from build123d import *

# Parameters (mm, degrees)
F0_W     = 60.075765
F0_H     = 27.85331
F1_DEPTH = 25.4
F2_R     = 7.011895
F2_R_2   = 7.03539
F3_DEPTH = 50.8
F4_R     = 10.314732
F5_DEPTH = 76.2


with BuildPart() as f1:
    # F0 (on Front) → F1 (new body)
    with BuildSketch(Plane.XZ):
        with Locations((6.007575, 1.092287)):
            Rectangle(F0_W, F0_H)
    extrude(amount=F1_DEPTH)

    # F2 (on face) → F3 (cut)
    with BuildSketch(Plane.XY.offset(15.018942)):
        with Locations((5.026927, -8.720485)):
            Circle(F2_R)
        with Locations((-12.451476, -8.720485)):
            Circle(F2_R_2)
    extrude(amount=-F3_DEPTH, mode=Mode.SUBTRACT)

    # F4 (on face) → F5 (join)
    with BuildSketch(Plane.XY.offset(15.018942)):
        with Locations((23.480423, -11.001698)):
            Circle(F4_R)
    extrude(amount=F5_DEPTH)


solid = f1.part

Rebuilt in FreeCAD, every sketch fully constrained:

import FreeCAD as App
import Part
import Sketcher
from FreeCAD import Vector
Q = App.Units.Quantity


def add_polygon(sketch, points):
    """Adds a closed chain of lines whose ends are joined by coincident constraints."""
    first, n = sketch.GeometryCount, len(points)
    for a, b in zip(points, points[1:] + points[:1]):
        sketch.addGeometry(Part.LineSegment(App.Vector(*a, 0), App.Vector(*b, 0)), False)
    for i in range(n):
        sketch.addConstraint(Sketcher.Constraint("Coincident", first + i, 2, first + (i + 1) % n, 1))

doc = App.newDocument("Part")
body = doc.addObject("PartDesign::Body", "Body")

# Sketch on XZ plane
sketch1 = body.newObject("Sketcher::SketchObject", "Sketch")
sketch1.AttachmentSupport = (doc.getObject("XZ_Plane"), [""])
sketch1.MapMode = "FlatFace"
add_polygon(sketch1, [(-24.030307, 15.018942), (-24.030307, -12.834368), (36.045457, -12.834368), (36.045457, 15.018942)])  # lines 0-3
sketch1.addConstraint(Sketcher.Constraint("Vertical", 0))
sketch1.addConstraint(Sketcher.Constraint("Horizontal", 1))
sketch1.addConstraint(Sketcher.Constraint("Vertical", 2))
sketch1.addConstraint(Sketcher.Constraint("Horizontal", 3))
sketch1.addConstraint(Sketcher.Constraint("DistanceY", 0, 2, 0, 1, 27.85331))
sketch1.addConstraint(Sketcher.Constraint("DistanceX", 1, 1, 1, 2, 60.075765))
sketch1.addConstraint(Sketcher.Constraint("DistanceY", -1, 1, 2, 2, 15.018942))
sketch1.addConstraint(Sketcher.Constraint("DistanceX", 0, 2, -1, 1, 24.030307))
pad1 = body.newObject("PartDesign::Pad", "Pad")
pad1.Profile = sketch1
pad1.Length = Q("1 in")

# Sketch on XY plane
sketch2 = body.newObject("Sketcher::SketchObject", "Sketch001")
sketch2.AttachmentSupport = (doc.getObject("XY_Plane"), [""])
sketch2.MapMode = "FlatFace"
sketch2.AttachmentOffset = App.Placement(Vector(0, 0, 15.018942), App.Rotation())
sketch2.addGeometry(Part.Circle(Vector(5.026927, -8.720485, 0), Vector(0, 0, 1), 7.011895), False)
sketch2.addGeometry(Part.Circle(Vector(-12.451476, -8.720485, 0), Vector(0, 0, 1), 7.03539), False)
sketch2.addConstraint(Sketcher.Constraint("Horizontal", 0, 3, 1, 3))
sketch2.addConstraint(Sketcher.Constraint("Diameter", 0, 14.02379))
sketch2.addConstraint(Sketcher.Constraint("Diameter", 1, 14.07078))
sketch2.addConstraint(Sketcher.Constraint("DistanceX", -1, 1, 0, 3, 5.026927))
sketch2.addConstraint(Sketcher.Constraint("DistanceY", 0, 3, -1, 1, 8.720485))
sketch2.addConstraint(Sketcher.Constraint("DistanceX", 1, 3, -1, 1, 12.451476))
pocket1 = body.newObject("PartDesign::Pocket", "Pocket")
pocket1.Profile = sketch2
pocket1.Length = Q("2 in")

# Sketch on XY plane
sketch3 = body.newObject("Sketcher::SketchObject", "Sketch002")
sketch3.AttachmentSupport = (doc.getObject("XY_Plane"), [""])
sketch3.MapMode = "FlatFace"
sketch3.AttachmentOffset = App.Placement(Vector(0, 0, 15.018942), App.Rotation())
sketch3.addGeometry(Part.Circle(Vector(23.480423, -11.001698, 0), Vector(0, 0, 1), 10.314732), False)
sketch3.addConstraint(Sketcher.Constraint("Diameter", 0, 20.629464))
sketch3.addConstraint(Sketcher.Constraint("DistanceX", -1, 1, 0, 3, 23.480423))
sketch3.addConstraint(Sketcher.Constraint("DistanceY", 0, 3, -1, 1, 11.001698))
pad2 = body.newObject("PartDesign::Pad", "Pad001")
pad2.Profile = sketch3
pad2.Length = Q("3 in")

doc.recompute()
